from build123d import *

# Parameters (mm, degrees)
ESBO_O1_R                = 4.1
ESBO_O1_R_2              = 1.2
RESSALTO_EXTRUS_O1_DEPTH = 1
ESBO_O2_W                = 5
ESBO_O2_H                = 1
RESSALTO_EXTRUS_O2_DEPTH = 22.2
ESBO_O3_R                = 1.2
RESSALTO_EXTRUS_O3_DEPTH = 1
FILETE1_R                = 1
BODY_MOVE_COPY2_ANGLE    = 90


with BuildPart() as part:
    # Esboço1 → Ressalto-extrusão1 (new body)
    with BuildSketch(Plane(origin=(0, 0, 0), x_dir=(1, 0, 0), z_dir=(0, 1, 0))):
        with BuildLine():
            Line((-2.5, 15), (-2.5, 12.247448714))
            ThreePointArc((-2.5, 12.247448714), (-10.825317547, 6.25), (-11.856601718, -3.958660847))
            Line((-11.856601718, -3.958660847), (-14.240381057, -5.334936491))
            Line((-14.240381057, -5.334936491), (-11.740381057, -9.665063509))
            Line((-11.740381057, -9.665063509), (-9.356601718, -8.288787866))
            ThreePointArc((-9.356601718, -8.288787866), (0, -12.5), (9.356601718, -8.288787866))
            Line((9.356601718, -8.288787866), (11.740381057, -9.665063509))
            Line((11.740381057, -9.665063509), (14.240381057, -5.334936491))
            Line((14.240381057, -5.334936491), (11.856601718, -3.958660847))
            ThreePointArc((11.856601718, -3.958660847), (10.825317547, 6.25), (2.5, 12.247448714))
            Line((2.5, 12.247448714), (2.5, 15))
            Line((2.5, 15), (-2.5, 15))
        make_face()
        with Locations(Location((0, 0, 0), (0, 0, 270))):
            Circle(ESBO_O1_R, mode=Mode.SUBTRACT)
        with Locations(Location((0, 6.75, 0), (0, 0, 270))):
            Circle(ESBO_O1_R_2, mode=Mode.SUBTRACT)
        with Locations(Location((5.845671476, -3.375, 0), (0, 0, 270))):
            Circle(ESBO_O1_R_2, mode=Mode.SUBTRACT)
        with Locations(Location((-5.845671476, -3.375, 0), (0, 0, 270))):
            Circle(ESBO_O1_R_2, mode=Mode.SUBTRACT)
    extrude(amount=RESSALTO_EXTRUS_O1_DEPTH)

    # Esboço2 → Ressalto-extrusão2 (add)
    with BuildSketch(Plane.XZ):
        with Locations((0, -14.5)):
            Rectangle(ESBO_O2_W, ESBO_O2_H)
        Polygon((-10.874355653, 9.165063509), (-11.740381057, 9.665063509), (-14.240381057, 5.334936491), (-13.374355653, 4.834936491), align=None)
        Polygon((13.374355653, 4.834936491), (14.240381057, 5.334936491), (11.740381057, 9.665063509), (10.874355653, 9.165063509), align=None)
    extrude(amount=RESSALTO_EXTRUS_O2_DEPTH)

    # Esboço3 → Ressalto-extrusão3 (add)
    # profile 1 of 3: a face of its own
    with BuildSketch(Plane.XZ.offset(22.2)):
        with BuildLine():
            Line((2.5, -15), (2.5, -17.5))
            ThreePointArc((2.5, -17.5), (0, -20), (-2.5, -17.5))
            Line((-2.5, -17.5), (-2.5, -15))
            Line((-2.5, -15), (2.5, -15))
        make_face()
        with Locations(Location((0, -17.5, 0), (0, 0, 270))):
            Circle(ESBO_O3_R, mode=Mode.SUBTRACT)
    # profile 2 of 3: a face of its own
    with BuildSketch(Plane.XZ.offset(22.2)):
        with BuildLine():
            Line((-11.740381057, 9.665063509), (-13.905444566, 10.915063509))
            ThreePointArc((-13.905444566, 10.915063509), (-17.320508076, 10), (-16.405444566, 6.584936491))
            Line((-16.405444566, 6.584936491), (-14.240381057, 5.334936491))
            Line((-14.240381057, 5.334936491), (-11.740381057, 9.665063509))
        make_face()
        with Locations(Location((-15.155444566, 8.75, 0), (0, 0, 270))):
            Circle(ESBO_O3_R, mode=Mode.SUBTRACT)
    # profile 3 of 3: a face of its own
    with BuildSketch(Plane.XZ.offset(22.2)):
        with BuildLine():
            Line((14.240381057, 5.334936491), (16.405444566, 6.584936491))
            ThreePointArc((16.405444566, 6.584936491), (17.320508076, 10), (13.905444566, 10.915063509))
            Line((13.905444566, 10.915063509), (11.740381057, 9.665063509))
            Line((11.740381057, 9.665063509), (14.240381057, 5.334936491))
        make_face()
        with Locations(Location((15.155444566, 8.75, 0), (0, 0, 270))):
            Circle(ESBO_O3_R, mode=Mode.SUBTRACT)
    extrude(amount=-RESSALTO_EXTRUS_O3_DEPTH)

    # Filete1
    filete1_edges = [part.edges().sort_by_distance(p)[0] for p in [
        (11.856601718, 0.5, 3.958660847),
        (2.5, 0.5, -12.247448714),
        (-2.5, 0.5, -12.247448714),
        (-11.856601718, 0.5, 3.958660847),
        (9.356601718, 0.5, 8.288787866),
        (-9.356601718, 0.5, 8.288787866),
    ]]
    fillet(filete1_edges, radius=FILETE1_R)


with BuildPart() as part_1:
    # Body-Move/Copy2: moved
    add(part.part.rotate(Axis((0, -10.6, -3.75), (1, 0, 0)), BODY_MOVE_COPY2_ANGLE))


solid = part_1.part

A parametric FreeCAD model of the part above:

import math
import FreeCAD as App
import Part
import Sketcher

V = App.Vector
Q = App.Units.Quantity


def edges_at(feature, points):
    """Names of the edges that pass closest to the given points."""
    edges = feature.Shape.Edges
    near = lambda p: min(range(len(edges)), key=lambda i: edges[i].distToShape(Part.Vertex(*p))[0])
    return sorted({f"Edge{near(p) + 1}" for p in points})

doc = App.newDocument("Part")
params = doc.addObject("Spreadsheet::Sheet", "Params")
for row, (alias, value) in enumerate([
    ("sketch1_diameter", "2.4 mm"),
    ("sketch1_diameter2", "8.2 mm"),
    ("sketch1_radius", "12.5 mm"),
    ("sketch1_width", "5 mm"),
    ("sketch1_length", "5 mm"),
    ("pad1_length", "1 mm"),
    ("sketch2_width", "5 mm"),
    ("sketch2_height", "1 mm"),
    ("sketch2_length", "1 mm"),
    ("sketch2_length2", "5 mm"),
    ("pad2_length", "22.2 mm"),
    ("sketch3_diameter", "2.4 mm"),
    ("sketch3_radius", "2.5 mm"),
    ("sketch3_height", "2.5 mm"),
    ("sketch3_length", "2.5 mm"),
    ("pad3_length", "1 mm"),
    ("fillet_radius", "1 mm"),
], start=1):
    params.set(f"A{row}", alias)
    params.set(f"B{row}", "=" + value)
    params.setAlias(f"B{row}", alias)

body = doc.addObject("PartDesign::Body", "Body")

sketch1 = body.newObject("Sketcher::SketchObject", "Sketch")
sketch1.AttachmentSupport = (doc.getObject("XZ_Plane"), [""])
sketch1.MapMode = "FlatFace"
sketch1.addGeometry([
    Part.LineSegment(V(-2.5, -15, 0), V(-2.5, -12.2, 0)),
    Part.ArcOfCircle(Part.Circle(V(0, 0, 0), V(0, 0, 1), 12.5), math.radians(162), math.radians(258)),
    Part.LineSegment(V(-11.9, 4, 0), V(-14.2, 5.3, 0)),
    Part.LineSegment(V(-14.2, 5.3, 0), V(-11.7, 9.7, 0)),
    Part.LineSegment(V(-11.7, 9.7, 0), V(-9.4, 8.3, 0)),
    Part.ArcOfCircle(Part.Circle(V(0, 0, 0), V(0, 0, 1), 12.5), math.radians(42), math.radians(138)),
    Part.LineSegment(V(9.4, 8.3, 0), V(11.7, 9.7, 0)),
    Part.LineSegment(V(11.7, 9.7, 0), V(14.2, 5.3, 0)),
    Part.LineSegment(V(14.2, 5.3, 0), V(11.9, 4, 0)),
    Part.ArcOfCircle(Part.Circle(V(0, 0, 0), V(0, 0, 1), 12.5), math.radians(-78), math.radians(18)),
    Part.LineSegment(V(2.5, -12.2, 0), V(2.5, -15, 0)),
    Part.LineSegment(V(2.5, -15, 0), V(-2.5, -15, 0)),
    Part.Circle(V(-5.8, 3.4, 0), V(0, 0, 1), 1.2),
    Part.Circle(V(5.8, 3.4, 0), V(0, 0, 1), 1.2),
    Part.Circle(V(0, 0, 0), V(0, 0, 1), 4.1),
    Part.Circle(V(0, -6.8, 0), V(0, 0, 1), 1.2),
], False)
sketch1.addConstraint([
    Sketcher.Constraint("Coincident", 0, 2, 1, 2),
    Sketcher.Constraint("Coincident", 1, 1, 2, 1),
    Sketcher.Constraint("Coincident", 2, 2, 3, 1),
    Sketcher.Constraint("Coincident", 3, 2, 4, 1),
    Sketcher.Constraint("Coincident", 4, 2, 5, 2),
    Sketcher.Constraint("Coincident", 5, 1, 6, 1),
    Sketcher.Constraint("Coincident", 6, 2, 7, 1),
    Sketcher.Constraint("Coincident", 7, 2, 8, 1),
    Sketcher.Constraint("Coincident", 8, 2, 9, 2),
    Sketcher.Constraint("Coincident", 9, 1, 10, 1),
    Sketcher.Constraint("Coincident", 10, 2, 11, 1),
    Sketcher.Constraint("Coincident", 11, 2, 0, 1),
    Sketcher.Constraint("Vertical", 0),
    Sketcher.Constraint("Vertical", 10),
    Sketcher.Constraint("Horizontal", 11),
    Sketcher.Constraint("Coincident", 1, 3, -1, 1),
    Sketcher.Constraint("Coincident", 5, 3, -1, 1),
    Sketcher.Constraint("Coincident", 9, 3, -1, 1),
    Sketcher.Constraint("Coincident", 14, 3, -1, 1),
    Sketcher.Constraint("Equal", 1, 5),
    Sketcher.Constraint("Equal", 5, 9),
    Sketcher.Constraint("Equal", 12, 13),
    Sketcher.Constraint("Equal", 13, 15),
    Sketcher.Constraint("Symmetric", 12, 3, 13, 3, -2),
    Sketcher.Constraint("Symmetric", 3, 2, 6, 2, -2),
    Sketcher.Constraint("Symmetric", 2, 2, 7, 2, -2),
    Sketcher.Constraint("PointOnObject", 15, 3, -2),
    Sketcher.Constraint("Perpendicular", 2, 3),
    Sketcher.Constraint("Perpendicular", 3, 4),
    Sketcher.Constraint("Perpendicular", 6, 7),
    Sketcher.Constraint("Perpendicular", 7, 8),
    Sketcher.Constraint("Horizontal", 0, 2, 9, 1),
    Sketcher.Constraint("Equal", 2, 4),
    Sketcher.Constraint("Diameter", 12, 2.4),
    Sketcher.Constraint("Diameter", 14, 8.2),
    Sketcher.Constraint("Radius", 1, 12.5),
    Sketcher.Constraint("DistanceX", 11, 2, 11, 1, 5.0),
    Sketcher.Constraint("Angle", 2, Q("150 deg")),
    Sketcher.Constraint("Distance", 3, 5.0),
    Sketcher.Constraint("DistanceY", 10, 2, -1, 1, 15.0),
    Sketcher.Constraint("DistanceY", 15, 3, -1, 1, 6.75),
    Sketcher.Constraint("DistanceY", -1, 1, 12, 3, 3.375),
    Sketcher.Constraint("Distance", 2, 2.752551),
    Sketcher.Constraint("DistanceX", 12, 3, -1, 1, 5.845671),
])
sketch1.setExpression("Constraints[33]", "Params.sketch1_diameter")
sketch1.setExpression("Constraints[34]", "Params.sketch1_diameter2")
sketch1.setExpression("Constraints[35]", "Params.sketch1_radius")
sketch1.setExpression("Constraints[36]", "Params.sketch1_width")
sketch1.setExpression("Constraints[38]", "Params.sketch1_length")
pad1 = body.newObject("PartDesign::Pad", "Pad")
pad1.Profile = sketch1
pad1.setExpression("Length", "Params.pad1_length")
pad1.Reversed = True

sketch2 = body.newObject("Sketcher::SketchObject", "Sketch001")
sketch2.AttachmentSupport = (doc.getObject("XZ_Plane"), [""])
sketch2.MapMode = "FlatFace"
sketch2.addGeometry([
    Part.LineSegment(V(-2.5, -14, 0), V(-2.5, -15, 0)),
    Part.LineSegment(V(-2.5, -15, 0), V(2.5, -15, 0)),
    Part.LineSegment(V(2.5, -15, 0), V(2.5, -14, 0)),
    Part.LineSegment(V(2.5, -14, 0), V(-2.5, -14, 0)),
    Part.LineSegment(V(-10.9, 9.2, 0), V(-11.7, 9.7, 0)),
    Part.LineSegment(V(-11.7, 9.7, 0), V(-14.2, 5.3, 0)),
    Part.LineSegment(V(-14.2, 5.3, 0), V(-13.4, 4.8, 0)),
    Part.LineSegment(V(-13.4, 4.8, 0), V(-10.9, 9.2, 0)),
    Part.LineSegment(V(13.4, 4.8, 0), V(14.2, 5.3, 0)),
    Part.LineSegment(V(14.2, 5.3, 0), V(11.7, 9.7, 0)),
    Part.LineSegment(V(11.7, 9.7, 0), V(10.9, 9.2, 0)),
    Part.LineSegment(V(10.9, 9.2, 0), V(13.4, 4.8, 0)),
], False)
sketch2.addConstraint([
    Sketcher.Constraint("Coincident", 0, 2, 1, 1),
    Sketcher.Constraint("Coincident", 1, 2, 2, 1),
    Sketcher.Constraint("Coincident", 2, 2, 3, 1),
    Sketcher.Constraint("Coincident", 3, 2, 0, 1),
    Sketcher.Constraint("Coincident", 4, 2, 5, 1),
    Sketcher.Constraint("Coincident", 5, 2, 6, 1),
    Sketcher.Constraint("Coincident", 6, 2, 7, 1),
    Sketcher.Constraint("Coincident", 7, 2, 4, 1),
    Sketcher.Constraint("Coincident", 8, 2, 9, 1),
    Sketcher.Constraint("Coincident", 9, 2, 10, 1),
    Sketcher.Constraint("Coincident", 10, 2, 11, 1),
    Sketcher.Constraint("Coincident", 11, 2, 8, 1),
    Sketcher.Constraint("Vertical", 0),
    Sketcher.Constraint("Horizontal", 1),
    Sketcher.Constraint("Vertical", 2),
    Sketcher.Constraint("Horizontal", 3),
    Sketcher.Constraint("Symmetric", 5, 2, 8, 2, -2),
    Sketcher.Constraint("Symmetric", 4, 2, 9, 2, -2),
    Sketcher.Constraint("Symmetric", 7, 2, 10, 2, -2),
    Sketcher.Constraint("Symmetric", 6, 2, 11, 2, -2),
    Sketcher.Constraint("Perpendicular", 4, 5),
    Sketcher.Constraint("Perpendicular", 5, 6),
    Sketcher.Constraint("Perpendicular", 6, 7),
    Sketcher.Constraint("DistanceX", 1, 1, 1, 2, 5.0),
    Sketcher.Constraint("DistanceY", 0, 2, 0, 1, 1.0),
    Sketcher.Constraint("Angle", 4, Q("150 deg")),
    Sketcher.Constraint("Distance", 4, 1.0),
    Sketcher.Constraint("Distance", 5, 5.0),
    Sketcher.Constraint("DistanceY", 0, 2, -1, 1, 15.0),
    Sketcher.Constraint("DistanceX", 0, 2, -1, 1, 2.5),
    Sketcher.Constraint("DistanceX", 4, 2, -1, 1, 11.740381),
    Sketcher.Constraint("DistanceY", -1, 1, 4, 2, 9.665064),
])
sketch2.setExpression("Constraints[23]", "Params.sketch2_width")
sketch2.setExpression("Constraints[24]", "Params.sketch2_height")
sketch2.setExpression("Constraints[26]", "Params.sketch2_length")
sketch2.setExpression("Constraints[27]", "Params.sketch2_length2")
pad2 = body.newObject("PartDesign::Pad", "Pad001")
pad2.Profile = sketch2
pad2.setExpression("Length", "Params.pad2_length")

sketch3 = body.newObject("Sketcher::SketchObject", "Sketch002")
sketch3.AttachmentSupport = (doc.getObject("XZ_Plane"), [""])
sketch3.MapMode = "FlatFace"
sketch3.AttachmentOffset = App.Placement(V(0, 0, 22.2), App.Rotation())
sketch3.addGeometry([
    Part.LineSegment(V(2.5, -17.5, 0), V(2.5, -15, 0)),
    Part.LineSegment(V(2.5, -15, 0), V(-2.5, -15, 0)),
    Part.LineSegment(V(-2.5, -15, 0), V(-2.5, -17.5, 0)),
    Part.ArcOfCircle(Part.Circle(V(0, -17.5, 0), V(0, 0, 1), 2.5), math.radians(180), math.radians(360)),
    Part.Circle(V(0, -17.5, 0), V(0, 0, 1), 1.2),
    Part.LineSegment(V(-11.7, 9.7, 0), V(-13.9, 10.9, 0)),
    Part.ArcOfCircle(Part.Circle(V(-15.2, 8.8, 0), V(0, 0, 1), 2.5), math.radians(60), math.radians(240)),
    Part.LineSegment(V(-16.4, 6.6, 0), V(-14.2, 5.3, 0)),
    Part.LineSegment(V(-14.2, 5.3, 0), V(-11.7, 9.7, 0)),
    Part.Circle(V(-15.2, 8.8, 0), V(0, 0, 1), 1.2),
    Part.LineSegment(V(14.2, 5.3, 0), V(16.4, 6.6, 0)),
    Part.ArcOfCircle(Part.Circle(V(15.2, 8.8, 0), V(0, 0, 1), 2.5), math.radians(-60), math.radians(120)),
    Part.LineSegment(V(13.9, 10.9, 0), V(11.7, 9.7, 0)),
    Part.LineSegment(V(11.7, 9.7, 0), V(14.2, 5.3, 0)),
    Part.Circle(V(15.2, 8.8, 0), V(0, 0, 1), 1.2),
], False)
sketch3.addConstraint([
    Sketcher.Constraint("Coincident", 0, 2, 1, 1),
    Sketcher.Constraint("Coincident", 1, 2, 2, 1),
    Sketcher.Constraint("Tangent", 2, 2, 3, 1),
    Sketcher.Constraint("Tangent", 3, 2, 0, 1),
    Sketcher.Constraint("Tangent", 5, 2, 6, 1),
    Sketcher.Constraint("Tangent", 6, 2, 7, 1),
    Sketcher.Constraint("Coincident", 7, 2, 8, 1),
    Sketcher.Constraint("Coincident", 8, 2, 5, 1),
    Sketcher.Constraint("Tangent", 10, 2, 11, 1),
    Sketcher.Constraint("Tangent", 11, 2, 12, 1),
    Sketcher.Constraint("Coincident", 12, 2, 13, 1),
    Sketcher.Constraint("Coincident", 13, 2, 10, 1),
    Sketcher.Constraint("Vertical", 0),
    Sketcher.Constraint("Horizontal", 1),
    Sketcher.Constraint("Vertical", 2),
    Sketcher.Constraint("Coincident", 4, 3, 3, 3),
    Sketcher.Constraint("Coincident", 9, 3, 6, 3),
    Sketcher.Constraint("Coincident", 14, 3, 11, 3),
    Sketcher.Constraint("Equal", 3, 6),
    Sketcher.Constraint("Equal", 4, 9),
    Sketcher.Constraint("Equal", 6, 11),
    Sketcher.Constraint("Equal", 9, 14),
    Sketcher.Constraint("Symmetric", 6, 3, 11, 3, -2),
    Sketcher.Constraint("Symmetric", 8, 2, 12, 2, -2),
    Sketcher.Constraint("Symmetric", 7, 2, 13, 2, -2),
    Sketcher.Constraint("PointOnObject", 3, 3, -2),
    Sketcher.Constraint("Parallel", 5, 7),
    Sketcher.Constraint("Perpendicular", 7, 8),
    Sketcher.Constraint("Diameter", 4, 2.4),
    Sketcher.Constraint("Radius", 3, 2.5),
    Sketcher.Constraint("Angle", 5, Q("150 deg")),
    Sketcher.Constraint("DistanceY", 0, 1, 0, 2, 2.5),
    Sketcher.Constraint("DistanceY", 0, 2, -1, 1, 15.0),
    Sketcher.Constraint("Distance", 5, 2.5),
    Sketcher.Constraint("DistanceY", -1, 1, 6, 3, 8.75),
    Sketcher.Constraint("DistanceX", 7, 2, -1, 1, 14.240381),
])
sketch3.setExpression("Constraints[28]", "Params.sketch3_diameter")
sketch3.setExpression("Constraints[29]", "Params.sketch3_radius")
sketch3.setExpression("Constraints[31]", "Params.sketch3_height")
sketch3.setExpression("Constraints[33]", "Params.sketch3_length")
pad3 = body.newObject("PartDesign::Pad", "Pad002")
pad3.Profile = sketch3
pad3.setExpression("Length", "Params.pad3_length")
pad3.Reversed = True
doc.recompute()

fillet = body.newObject("PartDesign::Fillet", "Fillet")
fillet.Base = (pad3, edges_at(pad3, [
    (11.857, 0.5, 3.959),
    (2.5, 0.5, -12.247),
    (-2.5, 0.5, -12.247),
    (-11.857, 0.5, 3.959),
    (9.357, 0.5, 8.289),
    (-9.357, 0.5, 8.289),
]))
fillet.setExpression("Radius", "Params.fillet_radius")
body2 = doc.addObject("PartDesign::Body", "Body001")
doc.recompute()

body.Placement = App.Placement(V(0, -14.35, 6.85), App.Rotation(V(1, 0, 0), 90))
boolean = body2.newObject("PartDesign::Boolean", "Boolean")
boolean.Type = "Fuse"
boolean.addObjects([body])

doc.recompute()
